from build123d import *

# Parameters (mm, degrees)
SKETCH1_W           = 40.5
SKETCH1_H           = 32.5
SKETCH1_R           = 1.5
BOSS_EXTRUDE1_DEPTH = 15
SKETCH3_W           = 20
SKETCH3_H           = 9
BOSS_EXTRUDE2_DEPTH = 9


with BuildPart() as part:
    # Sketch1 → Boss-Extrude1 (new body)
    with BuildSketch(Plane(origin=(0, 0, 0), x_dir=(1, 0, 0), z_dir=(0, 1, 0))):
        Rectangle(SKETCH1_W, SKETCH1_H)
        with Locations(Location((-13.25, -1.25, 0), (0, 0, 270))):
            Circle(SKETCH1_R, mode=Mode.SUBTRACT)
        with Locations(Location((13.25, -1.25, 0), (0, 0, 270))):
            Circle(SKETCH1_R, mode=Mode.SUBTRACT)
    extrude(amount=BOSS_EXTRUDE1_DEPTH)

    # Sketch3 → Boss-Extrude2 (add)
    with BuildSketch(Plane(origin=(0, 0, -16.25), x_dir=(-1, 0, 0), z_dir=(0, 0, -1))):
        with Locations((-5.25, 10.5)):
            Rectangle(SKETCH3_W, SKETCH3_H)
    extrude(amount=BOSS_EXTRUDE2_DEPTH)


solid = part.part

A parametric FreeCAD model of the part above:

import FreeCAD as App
import Part
import Sketcher

V = App.Vector
Q = App.Units.Quantity

doc = App.newDocument("Part")
params = doc.addObject("Spreadsheet::Sheet", "Params")
for row, (alias, value) in enumerate([
    ("sketch1_diameter", "3 mm"),
    ("sketch1_width", "40.5 mm"),
    ("sketch1_height", "32.5 mm"),
    ("pad1_length", "15 mm"),
    ("sketch2_width", "20 mm"),
    ("sketch2_height", "9 mm"),
    ("pad2_length", "9 mm"),
], start=1):
    params.set(f"A{row}", alias)
    params.set(f"B{row}", "=" + value)
    params.setAlias(f"B{row}", alias)

body = doc.addObject("PartDesign::Body", "Body")

# Sketch on XZ plane
sketch1 = body.newObject("Sketcher::SketchObject", "Sketch")
sketch1.AttachmentSupport = (doc.getObject("XZ_Plane"), [""])
sketch1.MapMode = "FlatFace"
sketch1.addGeometry([
    Part.LineSegment(V(-20.25, -16.25, 0), V(-20.25, 16.25, 0)),  # 0
    Part.LineSegment(V(-20.25, 16.25, 0), V(20.25, 16.25, 0)),  # 1
    Part.LineSegment(V(20.25, 16.25, 0), V(20.25, -16.25, 0)),  # 2
    Part.LineSegment(V(20.25, -16.25, 0), V(-20.25, -16.25, 0)),  # 3
    Part.Circle(V(-13.25, 1.25, 0), V(0, 0, 1), 1.5),  # 4
    Part.Circle(V(13.25, 1.25, 0), V(0, 0, 1), 1.5),  # 5
], False)
sketch1.addConstraint([
    Sketcher.Constraint("Coincident", 0, 2, 1, 1),
    Sketcher.Constraint("Coincident", 1, 2, 2, 1),
    Sketcher.Constraint("Coincident", 2, 2, 3, 1),
    Sketcher.Constraint("Coincident", 3, 2, 0, 1),
    Sketcher.Constraint("Vertical", 0),
    Sketcher.Constraint("Horizontal", 1),
    Sketcher.Constraint("Vertical", 2),
    Sketcher.Constraint("Horizontal", 3),
    Sketcher.Constraint("Equal", 4, 5),
    Sketcher.Constraint("Symmetric", 0, 2, 2, 2, -1, 1),
    Sketcher.Constraint("Symmetric", 4, 3, 5, 3, -2),
    Sketcher.Constraint("Diameter", 4, Q("3 mm")),
    Sketcher.Constraint("DistanceX", 1, 1, 1, 2, Q("40.5 mm")),
    Sketcher.Constraint("DistanceY", 0, 1, 0, 2, Q("32.5 mm")),
    Sketcher.Constraint("DistanceX", 0, 2, 4, 3, Q("7 mm")),
    Sketcher.Constraint("DistanceY", 4, 3, 0, 2, Q("15 mm")),
])
sketch1.setExpression("Constraints[11]", "Params.sketch1_diameter")
sketch1.setExpression("Constraints[12]", "Params.sketch1_width")
sketch1.setExpression("Constraints[13]", "Params.sketch1_height")
pad1 = body.newObject("PartDesign::Pad", "Pad")
pad1.Profile = sketch1
pad1.setExpression("Length", "Params.pad1_length")
pad1.Reversed = True

# Sketch on XY plane
sketch2 = body.newObject("Sketcher::SketchObject", "Sketch001")
sketch2.AttachmentSupport = (doc.getObject("XY_Plane"), [""])
sketch2.MapMode = "FlatFace"
sketch2.AttachmentOffset = App.Placement(V(0, 0, -16.25), App.Rotation())
sketch2.addGeometry([
    Part.LineSegment(V(15.25, 15, 0), V(15.25, 6, 0)),
    Part.LineSegment(V(15.25, 6, 0), V(-4.75, 6, 0)),
    Part.LineSegment(V(-4.75, 6, 0), V(-4.75, 15, 0)),
    Part.LineSegment(V(-4.75, 15, 0), V(15.25, 15, 0)),
], False)
sketch2.addConstraint([
    Sketcher.Constraint("Coincident", 0, 2, 1, 1),
    Sketcher.Constraint("Coincident", 1, 2, 2, 1),
    Sketcher.Constraint("Coincident", 2, 2, 3, 1),
    Sketcher.Constraint("Coincident", 3, 2, 0, 1),
    Sketcher.Constraint("Vertical", 0),
    Sketcher.Constraint("Horizontal", 1),
    Sketcher.Constraint("Vertical", 2),
    Sketcher.Constraint("Horizontal", 3),
    Sketcher.Constraint("DistanceX", 1, 2, 1, 1, Q("20 mm")),
    Sketcher.Constraint("DistanceY", 0, 2, 0, 1, Q("9 mm")),
    Sketcher.Constraint("DistanceY", -1, 1, 0, 2, Q("6 mm")),
    Sketcher.Constraint("DistanceX", -1, 1, 0, 2, Q("15.25 mm")),
])
sketch2.setExpression("Constraints[8]", "Params.sketch2_width")
sketch2.setExpression("Constraints[9]", "Params.sketch2_height")
pad2 = body.newObject("PartDesign::Pad", "Pad001")
pad2.Profile = sketch2
pad2.setExpression("Length", "Params.pad2_length")
pad2.Reversed = True

doc.recompute()
